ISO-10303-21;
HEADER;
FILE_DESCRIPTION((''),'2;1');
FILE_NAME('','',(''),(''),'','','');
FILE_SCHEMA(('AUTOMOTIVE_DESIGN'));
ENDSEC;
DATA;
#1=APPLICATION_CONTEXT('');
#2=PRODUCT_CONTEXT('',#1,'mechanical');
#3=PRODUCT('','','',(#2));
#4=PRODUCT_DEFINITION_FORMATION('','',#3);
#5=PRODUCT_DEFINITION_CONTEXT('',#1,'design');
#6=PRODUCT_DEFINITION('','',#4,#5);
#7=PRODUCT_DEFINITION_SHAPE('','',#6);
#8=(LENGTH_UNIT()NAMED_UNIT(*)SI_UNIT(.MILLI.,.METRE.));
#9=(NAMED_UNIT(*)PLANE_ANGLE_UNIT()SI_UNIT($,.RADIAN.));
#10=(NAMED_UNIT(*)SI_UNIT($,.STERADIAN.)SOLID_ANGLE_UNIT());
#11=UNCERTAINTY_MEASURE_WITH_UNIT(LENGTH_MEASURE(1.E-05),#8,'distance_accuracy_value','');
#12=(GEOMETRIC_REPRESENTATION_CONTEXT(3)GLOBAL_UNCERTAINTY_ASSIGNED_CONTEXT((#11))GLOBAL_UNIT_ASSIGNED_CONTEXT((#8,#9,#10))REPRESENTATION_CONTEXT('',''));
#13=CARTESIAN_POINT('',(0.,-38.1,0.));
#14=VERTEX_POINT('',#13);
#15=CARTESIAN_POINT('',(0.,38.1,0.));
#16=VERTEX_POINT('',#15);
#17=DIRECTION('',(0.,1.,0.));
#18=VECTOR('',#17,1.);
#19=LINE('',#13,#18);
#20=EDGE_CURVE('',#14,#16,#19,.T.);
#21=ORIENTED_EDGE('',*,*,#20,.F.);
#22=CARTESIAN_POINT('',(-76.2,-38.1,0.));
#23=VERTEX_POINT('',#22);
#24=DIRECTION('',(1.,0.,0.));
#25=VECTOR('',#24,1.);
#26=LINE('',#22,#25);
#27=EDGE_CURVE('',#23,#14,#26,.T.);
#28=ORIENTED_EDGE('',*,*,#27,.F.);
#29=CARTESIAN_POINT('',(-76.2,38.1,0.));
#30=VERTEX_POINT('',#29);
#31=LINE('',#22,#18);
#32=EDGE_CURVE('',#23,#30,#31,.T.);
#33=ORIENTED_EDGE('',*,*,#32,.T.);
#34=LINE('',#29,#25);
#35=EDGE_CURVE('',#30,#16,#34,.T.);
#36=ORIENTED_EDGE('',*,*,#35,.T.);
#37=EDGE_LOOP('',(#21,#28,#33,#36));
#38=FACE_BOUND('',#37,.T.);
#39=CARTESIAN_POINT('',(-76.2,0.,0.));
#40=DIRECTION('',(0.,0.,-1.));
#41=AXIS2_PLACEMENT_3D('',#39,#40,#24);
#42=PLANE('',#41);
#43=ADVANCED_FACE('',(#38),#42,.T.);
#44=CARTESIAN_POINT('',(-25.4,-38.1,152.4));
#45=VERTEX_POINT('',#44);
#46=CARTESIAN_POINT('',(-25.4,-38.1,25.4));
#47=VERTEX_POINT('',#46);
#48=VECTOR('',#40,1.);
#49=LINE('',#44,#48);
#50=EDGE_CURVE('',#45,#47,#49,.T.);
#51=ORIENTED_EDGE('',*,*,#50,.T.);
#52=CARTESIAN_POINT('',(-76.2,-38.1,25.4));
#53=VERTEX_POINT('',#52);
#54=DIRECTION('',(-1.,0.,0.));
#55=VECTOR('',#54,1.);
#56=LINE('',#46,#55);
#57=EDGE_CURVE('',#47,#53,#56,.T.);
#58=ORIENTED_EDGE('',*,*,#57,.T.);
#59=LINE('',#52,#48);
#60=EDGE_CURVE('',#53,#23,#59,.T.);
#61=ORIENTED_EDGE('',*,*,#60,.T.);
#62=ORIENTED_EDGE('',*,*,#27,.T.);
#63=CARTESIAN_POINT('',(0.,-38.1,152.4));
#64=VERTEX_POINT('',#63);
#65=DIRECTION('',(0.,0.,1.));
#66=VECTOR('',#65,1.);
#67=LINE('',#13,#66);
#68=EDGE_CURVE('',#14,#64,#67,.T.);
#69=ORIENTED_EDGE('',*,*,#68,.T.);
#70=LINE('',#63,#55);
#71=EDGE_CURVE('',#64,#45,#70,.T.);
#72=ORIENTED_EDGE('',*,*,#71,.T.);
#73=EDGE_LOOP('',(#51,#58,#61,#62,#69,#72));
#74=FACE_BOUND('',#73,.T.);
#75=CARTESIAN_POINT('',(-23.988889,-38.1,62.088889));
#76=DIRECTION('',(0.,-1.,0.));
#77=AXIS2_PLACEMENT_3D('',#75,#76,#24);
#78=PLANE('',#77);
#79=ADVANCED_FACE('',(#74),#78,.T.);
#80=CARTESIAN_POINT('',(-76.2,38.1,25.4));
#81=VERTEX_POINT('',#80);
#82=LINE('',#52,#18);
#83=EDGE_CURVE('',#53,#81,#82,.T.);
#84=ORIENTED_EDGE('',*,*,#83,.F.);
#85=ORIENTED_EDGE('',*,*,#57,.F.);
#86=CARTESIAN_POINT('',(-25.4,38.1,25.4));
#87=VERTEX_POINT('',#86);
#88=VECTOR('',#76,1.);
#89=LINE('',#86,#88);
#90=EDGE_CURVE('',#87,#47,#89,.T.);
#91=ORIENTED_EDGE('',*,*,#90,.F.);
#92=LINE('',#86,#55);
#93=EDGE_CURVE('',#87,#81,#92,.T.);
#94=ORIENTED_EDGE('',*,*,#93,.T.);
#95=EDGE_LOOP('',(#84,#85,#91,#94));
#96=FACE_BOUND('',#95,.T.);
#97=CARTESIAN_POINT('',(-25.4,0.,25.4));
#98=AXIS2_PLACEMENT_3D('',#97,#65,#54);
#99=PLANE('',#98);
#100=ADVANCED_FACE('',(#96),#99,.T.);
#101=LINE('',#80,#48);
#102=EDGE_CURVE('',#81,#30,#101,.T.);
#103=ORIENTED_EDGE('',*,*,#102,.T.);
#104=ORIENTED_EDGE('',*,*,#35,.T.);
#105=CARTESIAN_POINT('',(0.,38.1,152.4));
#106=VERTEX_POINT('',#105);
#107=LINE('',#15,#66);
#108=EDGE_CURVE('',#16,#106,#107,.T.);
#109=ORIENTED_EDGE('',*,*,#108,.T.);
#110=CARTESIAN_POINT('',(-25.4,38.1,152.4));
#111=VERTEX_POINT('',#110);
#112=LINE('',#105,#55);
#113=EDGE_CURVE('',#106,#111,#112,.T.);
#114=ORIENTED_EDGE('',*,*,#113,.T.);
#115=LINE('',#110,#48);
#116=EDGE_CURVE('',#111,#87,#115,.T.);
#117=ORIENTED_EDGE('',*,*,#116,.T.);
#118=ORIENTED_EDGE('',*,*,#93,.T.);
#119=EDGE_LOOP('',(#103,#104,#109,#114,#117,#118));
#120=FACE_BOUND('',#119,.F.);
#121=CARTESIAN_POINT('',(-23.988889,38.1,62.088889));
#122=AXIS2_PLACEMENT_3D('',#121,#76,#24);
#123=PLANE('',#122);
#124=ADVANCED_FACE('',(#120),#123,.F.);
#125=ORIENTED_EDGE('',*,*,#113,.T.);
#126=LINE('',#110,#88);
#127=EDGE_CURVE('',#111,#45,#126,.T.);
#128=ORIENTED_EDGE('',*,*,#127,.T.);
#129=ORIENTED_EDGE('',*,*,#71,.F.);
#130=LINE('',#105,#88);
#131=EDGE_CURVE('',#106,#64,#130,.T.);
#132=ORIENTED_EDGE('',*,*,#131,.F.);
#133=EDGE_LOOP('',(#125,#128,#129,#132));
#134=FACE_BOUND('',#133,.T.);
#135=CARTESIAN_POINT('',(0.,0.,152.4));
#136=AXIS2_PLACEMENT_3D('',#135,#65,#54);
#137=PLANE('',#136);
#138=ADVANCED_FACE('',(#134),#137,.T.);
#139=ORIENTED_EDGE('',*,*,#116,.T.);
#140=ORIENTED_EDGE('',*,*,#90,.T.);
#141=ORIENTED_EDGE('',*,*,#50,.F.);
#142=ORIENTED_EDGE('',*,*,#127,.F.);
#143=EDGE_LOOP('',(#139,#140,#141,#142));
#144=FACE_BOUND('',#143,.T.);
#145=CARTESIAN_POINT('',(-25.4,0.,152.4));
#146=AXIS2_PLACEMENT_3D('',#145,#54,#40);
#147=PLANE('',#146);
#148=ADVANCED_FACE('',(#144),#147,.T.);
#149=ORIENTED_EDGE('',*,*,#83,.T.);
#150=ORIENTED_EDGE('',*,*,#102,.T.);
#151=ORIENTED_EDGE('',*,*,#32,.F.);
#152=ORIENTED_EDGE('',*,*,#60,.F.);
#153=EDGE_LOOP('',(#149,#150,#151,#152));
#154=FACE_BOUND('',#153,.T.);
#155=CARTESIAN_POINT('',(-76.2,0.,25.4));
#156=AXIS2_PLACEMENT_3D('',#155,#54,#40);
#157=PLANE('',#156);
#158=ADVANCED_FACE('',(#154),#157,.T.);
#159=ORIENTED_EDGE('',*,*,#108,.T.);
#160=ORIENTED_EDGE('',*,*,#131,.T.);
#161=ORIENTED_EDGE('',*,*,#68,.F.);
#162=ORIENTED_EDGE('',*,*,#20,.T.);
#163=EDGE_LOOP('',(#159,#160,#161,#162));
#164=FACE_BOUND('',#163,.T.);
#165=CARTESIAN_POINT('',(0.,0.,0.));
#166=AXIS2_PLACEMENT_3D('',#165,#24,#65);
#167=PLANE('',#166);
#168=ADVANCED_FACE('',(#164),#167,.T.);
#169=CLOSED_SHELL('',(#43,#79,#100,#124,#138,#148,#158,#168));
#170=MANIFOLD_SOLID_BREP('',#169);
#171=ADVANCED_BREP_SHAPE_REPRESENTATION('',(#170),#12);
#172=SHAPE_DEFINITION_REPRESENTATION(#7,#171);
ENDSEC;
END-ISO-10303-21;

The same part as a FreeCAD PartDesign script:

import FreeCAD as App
import Part
import Sketcher
from FreeCAD import Vector
Q = App.Units.Quantity


def add_polygon(sketch, points):
    """Adds a closed chain of lines whose ends are joined by coincident constraints."""
    first, n = sketch.GeometryCount, len(points)
    for a, b in zip(points, points[1:] + points[:1]):
        sketch.addGeometry(Part.LineSegment(App.Vector(*a, 0), App.Vector(*b, 0)), False)
    for i in range(n):
        sketch.addConstraint(Sketcher.Constraint("Coincident", first + i, 2, first + (i + 1) % n, 1))

doc = App.newDocument("Part")
params = doc.addObject("Spreadsheet::Sheet", "Params")
for row, (alias, value) in enumerate([
    ("sketch1_width", "1 in"),
    ("sketch1_width2", "2 in"),
    ("sketch1_height", "6 in"),
    ("pad1_length", "1.5 in"),
    ("pad1_length2", "1.5 in"),
], start=1):
    params.set(f"A{row}", alias)
    params.set(f"B{row}", "=" + value)
    params.setAlias(f"B{row}", alias)

body = doc.addObject("PartDesign::Body", "Body")

# Sketch on XZ plane
sketch1 = body.newObject("Sketcher::SketchObject", "Sketch")
sketch1.AttachmentSupport = (doc.getObject("XZ_Plane"), [""])
sketch1.MapMode = "FlatFace"
add_polygon(sketch1, [(0, 0), (0, 152.4), (-25.4, 152.4), (-25.4, 25.4), (-76.2, 25.4), (-76.2, 0)])  # lines 0-5
sketch1.addConstraint(Sketcher.Constraint("Vertical", 0))
sketch1.addConstraint(Sketcher.Constraint("Horizontal", 1))
sketch1.addConstraint(Sketcher.Constraint("Vertical", 2))
sketch1.addConstraint(Sketcher.Constraint("Horizontal", 3))
sketch1.addConstraint(Sketcher.Constraint("Vertical", 4))
sketch1.addConstraint(Sketcher.Constraint("Horizontal", 5))
sketch1.addConstraint(Sketcher.Constraint("Coincident", 5, 2, -1, 1))
sketch1.addConstraint(Sketcher.Constraint("Equal", 1, 4))
sketch1.addConstraint(Sketcher.Constraint("DistanceX", 1, 2, 1, 1, Q("1 in")))
sketch1.addConstraint(Sketcher.Constraint("DistanceX", 3, 2, 3, 1, Q("2 in")))
sketch1.addConstraint(Sketcher.Constraint("DistanceY", 0, 1, 0, 2, Q("6 in")))
sketch1.setExpression("Constraints[14]", "Params.sketch1_width")
sketch1.setExpression("Constraints[15]", "Params.sketch1_width2")
sketch1.setExpression("Constraints[16]", "Params.sketch1_height")
pad1 = body.newObject("PartDesign::Pad", "Pad")
pad1.Profile = sketch1
pad1.Type = "TwoLengths"
pad1.setExpression("Length", "Params.pad1_length")
pad1.setExpression("Length2", "Params.pad1_length2")

doc.recompute()
